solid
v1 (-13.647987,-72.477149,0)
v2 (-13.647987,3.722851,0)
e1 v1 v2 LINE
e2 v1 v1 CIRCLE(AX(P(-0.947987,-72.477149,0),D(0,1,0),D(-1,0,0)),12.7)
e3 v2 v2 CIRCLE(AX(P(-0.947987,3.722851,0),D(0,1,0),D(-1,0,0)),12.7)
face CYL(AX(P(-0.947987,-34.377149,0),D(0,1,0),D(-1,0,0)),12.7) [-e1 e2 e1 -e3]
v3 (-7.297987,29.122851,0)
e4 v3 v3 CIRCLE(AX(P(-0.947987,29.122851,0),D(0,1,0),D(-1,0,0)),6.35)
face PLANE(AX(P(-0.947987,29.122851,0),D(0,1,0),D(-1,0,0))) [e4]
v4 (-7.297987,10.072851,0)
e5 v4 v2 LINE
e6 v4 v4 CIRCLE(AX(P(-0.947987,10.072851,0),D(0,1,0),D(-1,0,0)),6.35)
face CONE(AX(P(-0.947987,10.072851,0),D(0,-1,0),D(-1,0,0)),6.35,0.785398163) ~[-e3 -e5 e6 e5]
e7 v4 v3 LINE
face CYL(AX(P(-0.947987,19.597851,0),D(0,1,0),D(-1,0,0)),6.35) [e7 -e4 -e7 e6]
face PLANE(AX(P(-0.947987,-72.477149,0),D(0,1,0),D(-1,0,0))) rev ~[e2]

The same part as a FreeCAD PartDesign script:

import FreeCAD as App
import Part
import Sketcher
from FreeCAD import Vector
Q = App.Units.Quantity

doc = App.newDocument("Part")
body = doc.addObject("PartDesign::Body", "Body")

# Sketch on XY plane
sketch1 = body.newObject("Sketcher::SketchObject", "Sketch")
sketch1.AttachmentSupport = (doc.getObject("XY_Plane"), [""])
sketch1.MapMode = "FlatFace"
sketch1.addGeometry([
    Part.LineSegment(Vector(-13.647987, 3.722851, 0), Vector(-13.647987, -72.477149, 0)),
    Part.LineSegment(Vector(-13.647987, -72.477149, 0), Vector(-0.947987, -72.477149, 0)),
    Part.LineSegment(Vector(-0.947987, -72.477149, 0), Vector(-0.947987, 3.722851, 0)),
    Part.LineSegment(Vector(-0.947987, 3.722851, 0), Vector(-13.647987, 3.722851, 0)),
], False)
sketch1.addGeometry(Part.LineSegment(Vector(-0.947987, -72.477149, 0), Vector(-0.947987, 3.722851, 0)), True)  # axis
sketch1.addConstraint([
    Sketcher.Constraint("Coincident", 0, 2, 1, 1),
    Sketcher.Constraint("Coincident", 1, 2, 2, 1),
    Sketcher.Constraint("Coincident", 2, 2, 3, 1),
    Sketcher.Constraint("Coincident", 3, 2, 0, 1),
    Sketcher.Constraint("Vertical", 0),
    Sketcher.Constraint("Horizontal", 1),
    Sketcher.Constraint("Vertical", 2),
    Sketcher.Constraint("Horizontal", 3),
    Sketcher.Constraint("Vertical", 4),
    Sketcher.Constraint("Coincident", 4, 1, 1, 2),
    Sketcher.Constraint("Horizontal", 3, 2, 4, 2),
    Sketcher.Constraint("DistanceY", 0, 2, 0, 1, Q("3 in")),
    Sketcher.Constraint("DistanceX", 1, 1, 1, 2, Q("0.5 in")),
    Sketcher.Constraint("DistanceY", 0, 2, -1, 1, Q("72.477149 mm")),
    Sketcher.Constraint("DistanceX", 0, 2, -1, 1, Q("13.647987 mm")),
])
revolution = body.newObject("PartDesign::Revolution", "Revolution")
revolution.Profile = sketch1
revolution.ReferenceAxis = (sketch1, ["Axis0"])
revolution.Angle = 360

# Sketch on XY plane
sketch2 = body.newObject("Sketcher::SketchObject", "Sketch001")
sketch2.AttachmentSupport = (doc.getObject("XY_Plane"), [""])
sketch2.MapMode = "FlatFace"
sketch2.addGeometry([
    Part.LineSegment(Vector(-7.297987, 10.072851, 0), Vector(-13.647987, 3.722851, 0)),
    Part.LineSegment(Vector(-13.647987, 3.722851, 0), Vector(-0.947987, 3.722851, 0)),
    Part.LineSegment(Vector(-0.947987, 3.722851, 0), Vector(-0.947987, 10.072851, 0)),
    Part.LineSegment(Vector(-0.947987, 10.072851, 0), Vector(-7.297987, 10.072851, 0)),
], False)
sketch2.addGeometry(Part.LineSegment(Vector(-0.947987, 3.722851, 0), Vector(-0.947987, 10.072851, 0)), True)  # axis
sketch2.addConstraint([
    Sketcher.Constraint("Coincident", 0, 2, 1, 1),
    Sketcher.Constraint("Coincident", 1, 2, 2, 1),
    Sketcher.Constraint("Coincident", 2, 2, 3, 1),
    Sketcher.Constraint("Coincident", 3, 2, 0, 1),
    Sketcher.Constraint("Horizontal", 1),
    Sketcher.Constraint("Vertical", 2),
    Sketcher.Constraint("Horizontal", 3),
    Sketcher.Constraint("Vertical", 4),
    Sketcher.Constraint("Coincident", 4, 1, 1, 2),
    Sketcher.Constraint("Horizontal", 3, 2, 4, 2),
    Sketcher.Constraint("Equal", 3, 2),
    Sketcher.Constraint("DistanceX", 1, 1, 1, 2, Q("0.5 in")),
    Sketcher.Constraint("Angle", 0, Q("-135 deg")),
    Sketcher.Constraint("DistanceY", -1, 1, 0, 2, Q("3.722851 mm")),
    Sketcher.Constraint("DistanceX", 0, 2, -1, 1, Q("13.647987 mm")),
])
revolution2 = body.newObject("PartDesign::Revolution", "Revolution001")
revolution2.Profile = sketch2
revolution2.ReferenceAxis = (sketch2, ["Axis0"])
revolution2.Angle = 360

# Sketch on XY plane
sketch3 = body.newObject("Sketcher::SketchObject", "Sketch002")
sketch3.AttachmentSupport = (doc.getObject("XY_Plane"), [""])
sketch3.MapMode = "FlatFace"
sketch3.addGeometry([
    Part.LineSegment(Vector(-7.297987, 29.122851, 0), Vector(-7.297987, 10.072851, 0)),
    Part.LineSegment(Vector(-7.297987, 10.072851, 0), Vector(-0.947987, 10.072851, 0)),
    Part.LineSegment(Vector(-0.947987, 10.072851, 0), Vector(-0.947987, 29.122851, 0)),
    Part.LineSegment(Vector(-0.947987, 29.122851, 0), Vector(-7.297987, 29.122851, 0)),
], False)
sketch3.addGeometry(Part.LineSegment(Vector(-0.947987, 10.072851, 0), Vector(-0.947987, 29.122851, 0)), True)  # axis
sketch3.addConstraint([
    Sketcher.Constraint("Coincident", 0, 2, 1, 1),
    Sketcher.Constraint("Coincident", 1, 2, 2, 1),
    Sketcher.Constraint("Coincident", 2, 2, 3, 1),
    Sketcher.Constraint("Coincident", 3, 2, 0, 1),
    Sketcher.Constraint("Vertical", 0),
    Sketcher.Constraint("Horizontal", 1),
    Sketcher.Constraint("Vertical", 2),
    Sketcher.Constraint("Horizontal", 3),
    Sketcher.Constraint("Vertical", 4),
    Sketcher.Constraint("Coincident", 4, 1, 1, 2),
    Sketcher.Constraint("Horizontal", 3, 2, 4, 2),
    Sketcher.Constraint("DistanceX", 1, 1, 1, 2, Q("0.25 in")),
    Sketcher.Constraint("DistanceY", 0, 2, 0, 1, Q("0.75 in")),
    Sketcher.Constraint("DistanceY", -1, 1, 0, 2, Q("10.072851 mm")),
    Sketcher.Constraint("DistanceX", 0, 2, -1, 1, Q("7.297987 mm")),
])
revolution3 = body.newObject("PartDesign::Revolution", "Revolution002")
revolution3.Profile = sketch3
revolution3.ReferenceAxis = (sketch3, ["Axis0"])
revolution3.Angle = 360

doc.recompute()
